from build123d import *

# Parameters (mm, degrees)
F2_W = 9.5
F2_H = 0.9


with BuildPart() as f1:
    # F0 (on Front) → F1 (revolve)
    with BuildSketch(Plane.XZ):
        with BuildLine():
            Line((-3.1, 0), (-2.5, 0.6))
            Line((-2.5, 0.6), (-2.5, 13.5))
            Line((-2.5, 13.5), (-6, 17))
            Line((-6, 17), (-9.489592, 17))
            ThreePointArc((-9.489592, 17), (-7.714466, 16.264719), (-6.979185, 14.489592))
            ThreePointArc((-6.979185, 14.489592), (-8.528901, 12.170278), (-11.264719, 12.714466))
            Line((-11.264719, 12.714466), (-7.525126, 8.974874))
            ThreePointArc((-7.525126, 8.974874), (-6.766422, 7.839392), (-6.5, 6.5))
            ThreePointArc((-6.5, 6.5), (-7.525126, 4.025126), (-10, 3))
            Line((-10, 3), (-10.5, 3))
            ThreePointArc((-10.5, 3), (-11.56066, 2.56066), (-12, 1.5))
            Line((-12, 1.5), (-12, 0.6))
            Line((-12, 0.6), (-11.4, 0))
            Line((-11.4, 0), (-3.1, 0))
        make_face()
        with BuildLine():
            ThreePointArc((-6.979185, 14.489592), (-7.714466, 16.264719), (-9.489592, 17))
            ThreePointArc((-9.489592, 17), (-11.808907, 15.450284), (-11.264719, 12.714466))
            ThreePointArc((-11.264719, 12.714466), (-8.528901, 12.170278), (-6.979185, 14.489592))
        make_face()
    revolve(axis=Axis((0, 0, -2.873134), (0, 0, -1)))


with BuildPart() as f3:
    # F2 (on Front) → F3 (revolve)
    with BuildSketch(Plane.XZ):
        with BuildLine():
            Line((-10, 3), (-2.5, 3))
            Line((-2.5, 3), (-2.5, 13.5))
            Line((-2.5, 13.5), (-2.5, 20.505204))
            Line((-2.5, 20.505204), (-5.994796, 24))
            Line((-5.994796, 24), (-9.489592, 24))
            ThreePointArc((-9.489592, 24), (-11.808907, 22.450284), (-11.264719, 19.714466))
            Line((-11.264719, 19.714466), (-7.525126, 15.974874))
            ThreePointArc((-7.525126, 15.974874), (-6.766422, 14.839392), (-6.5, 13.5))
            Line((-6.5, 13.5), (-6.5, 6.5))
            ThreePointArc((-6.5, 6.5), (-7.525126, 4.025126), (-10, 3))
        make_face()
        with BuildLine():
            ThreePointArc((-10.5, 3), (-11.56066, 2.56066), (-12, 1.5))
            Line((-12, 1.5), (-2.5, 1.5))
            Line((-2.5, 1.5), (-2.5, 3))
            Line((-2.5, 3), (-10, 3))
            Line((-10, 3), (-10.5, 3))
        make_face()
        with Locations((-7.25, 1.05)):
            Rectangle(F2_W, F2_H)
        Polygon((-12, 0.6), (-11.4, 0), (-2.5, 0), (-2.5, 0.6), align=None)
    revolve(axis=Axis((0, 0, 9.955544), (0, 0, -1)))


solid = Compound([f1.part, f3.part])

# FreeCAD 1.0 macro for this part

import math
import FreeCAD as App
import Part
import Sketcher
Q = App.Units.Quantity

doc = App.newDocument("Part")
params = doc.addObject("Spreadsheet::Sheet", "Params")
for row, (alias, value) in enumerate([
    ("sketch1_radius", "3.499999 mm"),
    ("sketch1_radius2", "1.500001 mm"),
    ("sketch1_width", "0.5 mm"),
    ("sketch1_width2", "8.3 mm"),
    ("sketch1_height", "12.9 mm"),
    ("revolution_angle", "360 deg"),
    ("sketch2_radius", "3.499999 mm"),
    ("sketch2_radius2", "1.500001 mm"),
    ("sketch2_height", "7 mm"),
    ("sketch2_width", "0.5 mm"),
    ("sketch2_width2", "8.9 mm"),
    ("revolution2_angle", "360 deg"),
], start=1):
    params.set(f"A{row}", alias)
    params.set(f"B{row}", "=" + value)
    params.setAlias(f"B{row}", alias)

body = doc.addObject("PartDesign::Body", "Body")

# Sketch on XZ plane
sketch1 = body.newObject("Sketcher::SketchObject", "Sketch")
sketch1.AttachmentSupport = (doc.getObject("XZ_Plane"), [""])
sketch1.MapMode = "FlatFace"
sketch1.addGeometry([
    Part.LineSegment(App.Vector(-3.1, 0, 0), App.Vector(-2.5, 0.6, 0)),  # 0
    Part.LineSegment(App.Vector(-2.5, 0.6, 0), App.Vector(-2.5, 13.5, 0)),  # 1
    Part.LineSegment(App.Vector(-2.5, 13.5, 0), App.Vector(-6, 17, 0)),  # 2
    Part.LineSegment(App.Vector(-6, 17, 0), App.Vector(-9.5, 17, 0)),  # 3
    Part.ArcOfCircle(Part.Circle(App.Vector(-9.5, 14.5, 0), App.Vector(0, 0, 1), 2.5), math.radians(90), math.radians(225)),  # 4
    Part.LineSegment(App.Vector(-11.3, 12.7, 0), App.Vector(-7.5, 9, 0)),  # 5
    Part.ArcOfCircle(Part.Circle(App.Vector(-10, 6.5, 0), App.Vector(0, 0, 1), 3.5), math.radians(0), math.radians(45)),  # 6
    Part.ArcOfCircle(Part.Circle(App.Vector(-10, 6.5, 0), App.Vector(0, 0, 1), 3.5), math.radians(-90), math.radians(0)),  # 7
    Part.LineSegment(App.Vector(-10, 3, 0), App.Vector(-10.5, 3, 0)),  # 8
    Part.ArcOfCircle(Part.Circle(App.Vector(-10.5, 1.5, 0), App.Vector(0, 0, 1), 1.5), math.radians(90), math.radians(180)),  # 9
    Part.LineSegment(App.Vector(-12, 1.5, 0), App.Vector(-12, 0.6, 0)),  # 10
    Part.LineSegment(App.Vector(-12, 0.6, 0), App.Vector(-11.4, 0, 0)),  # 11
    Part.LineSegment(App.Vector(-11.4, 0, 0), App.Vector(-3.1, 0, 0)),  # 12
], False)
sketch1.addConstraint([
    Sketcher.Constraint("Coincident", 0, 2, 1, 1),
    Sketcher.Constraint("Coincident", 1, 2, 2, 1),
    Sketcher.Constraint("Coincident", 2, 2, 3, 1),
    Sketcher.Constraint("Tangent", 3, 2, 4, 1),
    Sketcher.Constraint("Tangent", 4, 2, 5, 1),
    Sketcher.Constraint("Tangent", 5, 2, 6, 2),
    Sketcher.Constraint("Tangent", 6, 1, 7, 2),
    Sketcher.Constraint("Tangent", 7, 1, 8, 1),
    Sketcher.Constraint("Tangent", 8, 2, 9, 1),
    Sketcher.Constraint("Tangent", 9, 2, 10, 1),
    Sketcher.Constraint("Coincident", 10, 2, 11, 1),
    Sketcher.Constraint("Coincident", 11, 2, 12, 1),
    Sketcher.Constraint("Coincident", 12, 2, 0, 1),
    Sketcher.Constraint("Vertical", 1),
    Sketcher.Constraint("Horizontal", 3),
    Sketcher.Constraint("Horizontal", 8),
    Sketcher.Constraint("Vertical", 10),
    Sketcher.Constraint("Horizontal", 12),
    Sketcher.Constraint("PointOnObject", 11, 2, -1),
    Sketcher.Constraint("Perpendicular", 0, 2),
    Sketcher.Constraint("Parallel", 2, 5),
    Sketcher.Constraint("Parallel", 5, 11),
    Sketcher.Constraint("Horizontal", 7, 3, 6, 1),
    Sketcher.Constraint("Horizontal", 0, 2, 10, 2),
    Sketcher.Constraint("Equal", 0, 11),
    Sketcher.Constraint("Radius", 7, 3.499999),
    Sketcher.Constraint("Radius", 9, 1.500001),
    Sketcher.Constraint("DistanceX", 8, 2, 8, 1, 0.5),
    Sketcher.Constraint("DistanceX", 12, 1, 12, 2, 8.3),
    Sketcher.Constraint("DistanceY", 1, 1, 1, 2, 12.9),
    Sketcher.Constraint("DistanceY", 10, 2, 10, 1, 0.9),
    Sketcher.Constraint("DistanceX", 7, 3, -1, 1, 9.999999),
    Sketcher.Constraint("DistanceX", 2, 2, -1, 1, 6.0),
    Sketcher.Constraint("DistanceY", -1, 1, 2, 2, 17.0),
    Sketcher.Constraint("Radius", 4, 2.510408),
    Sketcher.Constraint("Radius", 6, 3.500007),
])
sketch1.setExpression("Constraints[25]", "Params.sketch1_radius")
sketch1.setExpression("Constraints[26]", "Params.sketch1_radius2")
sketch1.setExpression("Constraints[27]", "Params.sketch1_width")
sketch1.setExpression("Constraints[28]", "Params.sketch1_width2")
sketch1.setExpression("Constraints[29]", "Params.sketch1_height")
revolution = body.newObject("PartDesign::Revolution", "Revolution")
revolution.Profile = sketch1
revolution.ReferenceAxis = (sketch1, ["V_Axis"])
revolution.setExpression("Angle", "Params.revolution_angle")
body2 = doc.addObject("PartDesign::Body", "Body001")

# Sketch on XZ plane
sketch2 = body2.newObject("Sketcher::SketchObject", "Sketch001")
sketch2.AttachmentSupport = (doc.getObject("XZ_Plane001"), [""])
sketch2.MapMode = "FlatFace"
sketch2.addGeometry([
    Part.LineSegment(App.Vector(-2.5, 20.5, 0), App.Vector(-6, 24, 0)),  # 0
    Part.LineSegment(App.Vector(-6, 24, 0), App.Vector(-9.5, 24, 0)),  # 1
    Part.ArcOfCircle(Part.Circle(App.Vector(-9.5, 21.5, 0), App.Vector(0, 0, 1), 2.5), math.radians(90), math.radians(225)),  # 2
    Part.LineSegment(App.Vector(-11.3, 19.7, 0), App.Vector(-7.5, 16, 0)),  # 3
    Part.ArcOfCircle(Part.Circle(App.Vector(-10, 13.5, 0), App.Vector(0, 0, 1), 3.5), math.radians(0), math.radians(45)),  # 4
    Part.LineSegment(App.Vector(-6.5, 13.5, 0), App.Vector(-6.5, 6.5, 0)),  # 5
    Part.ArcOfCircle(Part.Circle(App.Vector(-10, 6.5, 0), App.Vector(0, 0, 1), 3.5), math.radians(-90), math.radians(0)),  # 6
    Part.LineSegment(App.Vector(-10, 3, 0), App.Vector(-10.5, 3, 0)),  # 7
    Part.ArcOfCircle(Part.Circle(App.Vector(-10.5, 1.5, 0), App.Vector(0, 0, 1), 1.5), math.radians(90), math.radians(180)),  # 8
    Part.LineSegment(App.Vector(-12, 1.5, 0), App.Vector(-12, 0.6, 0)),  # 9
    Part.LineSegment(App.Vector(-12, 0.6, 0), App.Vector(-11.4, 0, 0)),  # 10
    Part.LineSegment(App.Vector(-11.4, 0, 0), App.Vector(-2.5, 0, 0)),  # 11
    Part.LineSegment(App.Vector(-2.5, 0, 0), App.Vector(-2.5, 20.5, 0)),  # 12
], False)
sketch2.addConstraint([
    Sketcher.Constraint("Coincident", 0, 2, 1, 1),
    Sketcher.Constraint("Tangent", 1, 2, 2, 1),
    Sketcher.Constraint("Tangent", 2, 2, 3, 1),
    Sketcher.Constraint("Tangent", 3, 2, 4, 2),
    Sketcher.Constraint("Tangent", 4, 1, 5, 1),
    Sketcher.Constraint("Tangent", 5, 2, 6, 2),
    Sketcher.Constraint("Tangent", 6, 1, 7, 1),
    Sketcher.Constraint("Tangent", 7, 2, 8, 1),
    Sketcher.Constraint("Tangent", 8, 2, 9, 1),
    Sketcher.Constraint("Coincident", 9, 2, 10, 1),
    Sketcher.Constraint("Coincident", 10, 2, 11, 1),
    Sketcher.Constraint("Coincident", 11, 2, 12, 1),
    Sketcher.Constraint("Coincident", 12, 2, 0, 1),
    Sketcher.Constraint("Horizontal", 1),
    Sketcher.Constraint("Vertical", 5),
    Sketcher.Constraint("Horizontal", 7),
    Sketcher.Constraint("Vertical", 9),
    Sketcher.Constraint("Horizontal", 11),
    Sketcher.Constraint("Vertical", 12),
    Sketcher.Constraint("PointOnObject", 10, 2, -1),
    Sketcher.Constraint("Parallel", 0, 3),
    Sketcher.Constraint("Parallel", 3, 10),
    Sketcher.Constraint("Radius", 6, 3.499999),
    Sketcher.Constraint("Radius", 8, 1.500001),
    Sketcher.Constraint("DistanceY", 5, 2, 5, 1, 7.0),
    Sketcher.Constraint("Angle", 0, Q("135 deg")),
    Sketcher.Constraint("DistanceX", 7, 2, 7, 1, 0.5),
    Sketcher.Constraint("DistanceX", 11, 1, 11, 2, 8.9),
    Sketcher.Constraint("DistanceY", 9, 2, 9, 1, 0.9),
    Sketcher.Constraint("DistanceX", 6, 3, -1, 1, 9.999999),
    Sketcher.Constraint("DistanceY", -1, 1, 0, 2, 24.0),
    Sketcher.Constraint("DistanceY", -1, 1, 6, 1, 3.0),
    Sketcher.Constraint("Radius", 2, 2.510408),
    Sketcher.Constraint("Radius", 4, 3.500007),
    Sketcher.Constraint("DistanceX", 1, 2, 1, 1, 3.494796),
])
sketch2.setExpression("Constraints[22]", "Params.sketch2_radius")
sketch2.setExpression("Constraints[23]", "Params.sketch2_radius2")
sketch2.setExpression("Constraints[24]", "Params.sketch2_height")
sketch2.setExpression("Constraints[26]", "Params.sketch2_width")
sketch2.setExpression("Constraints[27]", "Params.sketch2_width2")
revolution2 = body2.newObject("PartDesign::Revolution", "Revolution001")
revolution2.Profile = sketch2
revolution2.ReferenceAxis = (sketch2, ["V_Axis"])
revolution2.setExpression("Angle", "Params.revolution2_angle")

doc.recompute()
